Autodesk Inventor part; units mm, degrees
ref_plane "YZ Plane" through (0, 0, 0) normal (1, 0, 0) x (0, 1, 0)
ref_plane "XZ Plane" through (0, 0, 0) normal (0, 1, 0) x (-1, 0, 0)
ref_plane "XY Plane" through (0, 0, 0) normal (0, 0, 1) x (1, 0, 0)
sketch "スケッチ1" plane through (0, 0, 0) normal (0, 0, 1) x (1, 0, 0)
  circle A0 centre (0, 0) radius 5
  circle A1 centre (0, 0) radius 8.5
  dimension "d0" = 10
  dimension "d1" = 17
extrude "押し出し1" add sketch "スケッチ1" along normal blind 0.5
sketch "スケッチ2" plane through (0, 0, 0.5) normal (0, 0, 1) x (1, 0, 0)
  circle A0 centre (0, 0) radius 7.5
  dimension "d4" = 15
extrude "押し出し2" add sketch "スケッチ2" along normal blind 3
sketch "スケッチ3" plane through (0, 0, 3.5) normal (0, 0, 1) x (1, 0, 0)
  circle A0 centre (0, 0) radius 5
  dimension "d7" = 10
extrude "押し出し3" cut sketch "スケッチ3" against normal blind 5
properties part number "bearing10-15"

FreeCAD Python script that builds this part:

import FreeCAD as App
import Part
import Sketcher
from FreeCAD import Vector
Q = App.Units.Quantity

doc = App.newDocument("Part")
params = doc.addObject("Spreadsheet::Sheet", "Params")
for row, (alias, value) in enumerate([
    ("sketch1_diameter", "17 mm"),
    ("sketch1_diameter2", "10 mm"),
    ("pad1_length", "0.5 mm"),
    ("sketch2_diameter", "15 mm"),
    ("pad2_length", "3 mm"),
    ("sketch3_diameter", "10 mm"),
    ("pocket1_length", "5 mm"),
], start=1):
    params.set(f"A{row}", alias)
    params.set(f"B{row}", "=" + value)
    params.setAlias(f"B{row}", alias)

body = doc.addObject("PartDesign::Body", "Body")

# Sketch on XY plane
sketch1 = body.newObject("Sketcher::SketchObject", "Sketch")
sketch1.AttachmentSupport = (doc.getObject("XY_Plane"), [""])
sketch1.MapMode = "FlatFace"
sketch1.addGeometry([
    Part.Circle(Vector(0, 0, 0), Vector(0, 0, 1), 8),
    Part.Circle(Vector(0, 0, 0), Vector(0, 0, 1), 5),
], False)
sketch1.addConstraint([
    Sketcher.Constraint("Coincident", 0, 3, -1, 1),
    Sketcher.Constraint("Coincident", 1, 3, -1, 1),
    Sketcher.Constraint("Diameter", 0, Q("17 mm")),
    Sketcher.Constraint("Diameter", 1, Q("10 mm")),
])
sketch1.setExpression("Constraints[2]", "Params.sketch1_diameter")
sketch1.setExpression("Constraints[3]", "Params.sketch1_diameter2")
pad1 = body.newObject("PartDesign::Pad", "Pad")
pad1.Profile = sketch1
pad1.setExpression("Length", "Params.pad1_length")

# Sketch on XY plane
sketch2 = body.newObject("Sketcher::SketchObject", "Sketch001")
sketch2.AttachmentSupport = (doc.getObject("XY_Plane"), [""])
sketch2.MapMode = "FlatFace"
sketch2.AttachmentOffset = App.Placement(Vector(0, 0, 0.5), App.Rotation())
sketch2.addGeometry(Part.Circle(Vector(0, 0, 0), Vector(0, 0, 1), 8), False)
sketch2.addConstraint([
    Sketcher.Constraint("Coincident", 0, 3, -1, 1),
    Sketcher.Constraint("Diameter", 0, Q("15 mm")),
])
sketch2.setExpression("Constraints[1]", "Params.sketch2_diameter")
pad2 = body.newObject("PartDesign::Pad", "Pad001")
pad2.Profile = sketch2
pad2.setExpression("Length", "Params.pad2_length")

# Sketch on XY plane
sketch3 = body.newObject("Sketcher::SketchObject", "Sketch002")
sketch3.AttachmentSupport = (doc.getObject("XY_Plane"), [""])
sketch3.MapMode = "FlatFace"
sketch3.AttachmentOffset = App.Placement(Vector(0, 0, 3.5), App.Rotation())
sketch3.addGeometry(Part.Circle(Vector(0, 0, 0), Vector(0, 0, 1), 5), False)
sketch3.addConstraint([
    Sketcher.Constraint("Coincident", 0, 3, -1, 1),
    Sketcher.Constraint("Diameter", 0, Q("10 mm")),
])
sketch3.setExpression("Constraints[1]", "Params.sketch3_diameter")
pocket1 = body.newObject("PartDesign::Pocket", "Pocket")
pocket1.Profile = sketch3
pocket1.setExpression("Length", "Params.pocket1_length")

doc.recompute()
